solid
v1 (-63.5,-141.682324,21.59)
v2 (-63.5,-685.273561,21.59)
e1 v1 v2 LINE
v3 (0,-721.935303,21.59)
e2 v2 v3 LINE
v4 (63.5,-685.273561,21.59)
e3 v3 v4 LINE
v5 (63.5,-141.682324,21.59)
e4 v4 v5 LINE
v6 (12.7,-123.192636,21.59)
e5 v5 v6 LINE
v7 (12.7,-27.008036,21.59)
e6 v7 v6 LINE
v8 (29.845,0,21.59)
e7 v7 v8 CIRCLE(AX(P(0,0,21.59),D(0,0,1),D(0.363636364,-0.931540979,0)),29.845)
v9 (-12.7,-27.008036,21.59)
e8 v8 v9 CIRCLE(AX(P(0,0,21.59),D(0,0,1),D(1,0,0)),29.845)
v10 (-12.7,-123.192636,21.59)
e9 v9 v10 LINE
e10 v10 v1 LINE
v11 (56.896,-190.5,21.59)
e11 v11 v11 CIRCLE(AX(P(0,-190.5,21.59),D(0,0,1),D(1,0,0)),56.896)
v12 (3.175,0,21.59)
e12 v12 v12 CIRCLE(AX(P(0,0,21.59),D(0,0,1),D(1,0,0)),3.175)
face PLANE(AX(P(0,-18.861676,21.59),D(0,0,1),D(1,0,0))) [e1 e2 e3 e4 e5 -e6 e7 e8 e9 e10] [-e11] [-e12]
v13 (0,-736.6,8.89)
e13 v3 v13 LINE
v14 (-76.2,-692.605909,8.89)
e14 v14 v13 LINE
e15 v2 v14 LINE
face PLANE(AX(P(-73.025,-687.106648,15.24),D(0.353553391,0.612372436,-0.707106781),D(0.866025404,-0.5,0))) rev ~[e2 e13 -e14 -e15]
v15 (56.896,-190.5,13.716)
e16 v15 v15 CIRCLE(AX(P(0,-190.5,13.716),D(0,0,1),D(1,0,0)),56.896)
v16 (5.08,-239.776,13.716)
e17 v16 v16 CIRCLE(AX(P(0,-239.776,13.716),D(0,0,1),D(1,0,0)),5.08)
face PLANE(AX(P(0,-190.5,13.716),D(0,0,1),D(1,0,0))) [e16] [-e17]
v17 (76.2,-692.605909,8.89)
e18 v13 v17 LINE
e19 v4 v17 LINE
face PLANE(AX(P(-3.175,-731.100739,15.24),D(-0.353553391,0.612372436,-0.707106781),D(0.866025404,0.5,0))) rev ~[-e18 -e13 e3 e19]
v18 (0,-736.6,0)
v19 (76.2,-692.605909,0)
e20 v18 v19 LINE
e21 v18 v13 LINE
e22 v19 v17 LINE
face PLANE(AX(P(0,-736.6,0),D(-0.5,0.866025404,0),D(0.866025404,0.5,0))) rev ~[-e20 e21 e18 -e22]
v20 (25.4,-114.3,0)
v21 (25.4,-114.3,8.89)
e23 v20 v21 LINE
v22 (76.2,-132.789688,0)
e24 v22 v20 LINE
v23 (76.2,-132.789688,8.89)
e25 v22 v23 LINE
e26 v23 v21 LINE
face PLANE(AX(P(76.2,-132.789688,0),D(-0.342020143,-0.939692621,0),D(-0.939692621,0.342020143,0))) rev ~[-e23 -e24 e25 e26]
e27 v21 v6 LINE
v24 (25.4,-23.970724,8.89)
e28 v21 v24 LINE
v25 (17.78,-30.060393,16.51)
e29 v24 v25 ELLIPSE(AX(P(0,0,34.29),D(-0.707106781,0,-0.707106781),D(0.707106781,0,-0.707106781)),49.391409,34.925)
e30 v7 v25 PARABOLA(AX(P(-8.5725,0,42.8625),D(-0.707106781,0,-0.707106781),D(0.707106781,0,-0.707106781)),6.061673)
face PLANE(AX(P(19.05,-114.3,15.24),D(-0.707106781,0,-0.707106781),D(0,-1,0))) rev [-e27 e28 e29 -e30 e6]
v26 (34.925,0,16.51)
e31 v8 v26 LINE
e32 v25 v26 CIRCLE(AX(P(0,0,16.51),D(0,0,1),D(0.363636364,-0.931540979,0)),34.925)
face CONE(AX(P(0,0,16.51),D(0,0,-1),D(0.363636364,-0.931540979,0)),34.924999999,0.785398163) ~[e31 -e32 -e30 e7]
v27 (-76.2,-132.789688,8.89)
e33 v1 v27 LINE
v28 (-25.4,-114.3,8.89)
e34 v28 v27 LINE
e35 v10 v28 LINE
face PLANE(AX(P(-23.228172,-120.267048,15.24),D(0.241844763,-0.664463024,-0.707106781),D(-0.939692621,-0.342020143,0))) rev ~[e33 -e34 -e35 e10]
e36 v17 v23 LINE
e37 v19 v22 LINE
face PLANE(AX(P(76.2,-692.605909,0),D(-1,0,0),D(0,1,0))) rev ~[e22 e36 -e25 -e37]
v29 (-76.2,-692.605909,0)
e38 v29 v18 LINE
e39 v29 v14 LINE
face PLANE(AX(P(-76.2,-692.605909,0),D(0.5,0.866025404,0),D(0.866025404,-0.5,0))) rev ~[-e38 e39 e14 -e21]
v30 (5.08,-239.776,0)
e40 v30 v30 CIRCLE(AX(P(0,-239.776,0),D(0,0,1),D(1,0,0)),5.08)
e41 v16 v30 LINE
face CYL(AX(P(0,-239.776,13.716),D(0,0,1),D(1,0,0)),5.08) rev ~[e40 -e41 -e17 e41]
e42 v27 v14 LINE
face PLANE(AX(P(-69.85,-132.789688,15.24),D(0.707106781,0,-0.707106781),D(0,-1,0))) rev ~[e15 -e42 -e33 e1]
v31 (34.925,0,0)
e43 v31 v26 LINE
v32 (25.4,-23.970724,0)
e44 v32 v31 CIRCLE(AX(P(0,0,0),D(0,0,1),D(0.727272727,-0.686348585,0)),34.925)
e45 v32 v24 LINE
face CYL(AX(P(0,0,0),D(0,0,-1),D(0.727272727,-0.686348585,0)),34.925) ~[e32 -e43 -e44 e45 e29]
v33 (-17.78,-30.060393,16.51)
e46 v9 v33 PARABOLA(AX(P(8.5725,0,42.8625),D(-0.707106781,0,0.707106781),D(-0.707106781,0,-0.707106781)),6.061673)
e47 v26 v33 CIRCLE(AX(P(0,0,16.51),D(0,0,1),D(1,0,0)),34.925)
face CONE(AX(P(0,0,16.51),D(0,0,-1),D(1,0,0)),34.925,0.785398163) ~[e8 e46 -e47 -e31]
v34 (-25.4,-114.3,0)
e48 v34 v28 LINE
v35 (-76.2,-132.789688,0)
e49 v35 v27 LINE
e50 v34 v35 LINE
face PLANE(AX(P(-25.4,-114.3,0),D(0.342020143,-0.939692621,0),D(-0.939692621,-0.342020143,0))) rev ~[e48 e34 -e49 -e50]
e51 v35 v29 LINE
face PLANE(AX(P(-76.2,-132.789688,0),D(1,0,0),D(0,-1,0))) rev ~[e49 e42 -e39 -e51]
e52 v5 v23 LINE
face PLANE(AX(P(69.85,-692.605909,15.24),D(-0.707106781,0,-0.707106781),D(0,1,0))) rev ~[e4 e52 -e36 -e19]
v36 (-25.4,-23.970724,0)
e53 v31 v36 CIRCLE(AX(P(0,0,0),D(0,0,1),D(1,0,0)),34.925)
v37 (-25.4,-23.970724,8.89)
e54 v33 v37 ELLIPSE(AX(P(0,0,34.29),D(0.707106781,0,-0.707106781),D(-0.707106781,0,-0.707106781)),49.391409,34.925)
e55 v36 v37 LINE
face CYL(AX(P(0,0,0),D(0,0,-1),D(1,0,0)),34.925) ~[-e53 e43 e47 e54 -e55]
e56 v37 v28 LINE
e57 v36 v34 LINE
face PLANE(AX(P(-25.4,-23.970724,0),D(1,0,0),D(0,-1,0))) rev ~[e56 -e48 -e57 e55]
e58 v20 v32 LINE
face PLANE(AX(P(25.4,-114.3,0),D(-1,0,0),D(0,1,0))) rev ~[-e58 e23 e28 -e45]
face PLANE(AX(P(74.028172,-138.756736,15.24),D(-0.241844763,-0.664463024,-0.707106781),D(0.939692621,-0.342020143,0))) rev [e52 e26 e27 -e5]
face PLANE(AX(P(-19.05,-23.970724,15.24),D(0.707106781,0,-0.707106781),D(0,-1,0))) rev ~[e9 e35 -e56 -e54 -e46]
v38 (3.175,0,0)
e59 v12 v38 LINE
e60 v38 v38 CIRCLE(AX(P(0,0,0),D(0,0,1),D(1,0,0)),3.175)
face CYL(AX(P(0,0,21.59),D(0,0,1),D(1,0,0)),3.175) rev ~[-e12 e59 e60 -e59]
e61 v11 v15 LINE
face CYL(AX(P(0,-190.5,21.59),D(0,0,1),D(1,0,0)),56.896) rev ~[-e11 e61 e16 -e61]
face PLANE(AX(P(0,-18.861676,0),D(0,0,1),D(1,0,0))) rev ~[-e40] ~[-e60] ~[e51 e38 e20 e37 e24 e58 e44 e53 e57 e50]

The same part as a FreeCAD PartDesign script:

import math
import FreeCAD as App
import Part
import Sketcher
Q = App.Units.Quantity


def edges_at(feature, points):
    """Names of the edges that pass closest to the given points."""
    edges = feature.Shape.Edges
    near = lambda p: min(range(len(edges)), key=lambda i: edges[i].distToShape(Part.Vertex(*p))[0])
    return sorted({f"Edge{near(p) + 1}" for p in points})

doc = App.newDocument("Part")
body = doc.addObject("PartDesign::Body", "Body")

sketch1 = doc.addObject("Sketcher::SketchObject", "Sketch")
body.addObject(sketch1)
sketch1.AttachmentSupport = (doc.XY_Plane, [""])
sketch1.MapMode = "FlatFace"
sketch1.addGeometry([
    Part.LineSegment(App.Vector(25, -114, 0), App.Vector(25, -24, 0)),
    Part.ArcOfCircle(Part.Circle(App.Vector(0, 0, 0), App.Vector(0, 0, 1), 35), math.radians(-43), math.radians(0)),
    Part.ArcOfCircle(Part.Circle(App.Vector(0, 0, 0), App.Vector(0, 0, 1), 35), math.radians(0), math.radians(223)),
    Part.LineSegment(App.Vector(-25, -24, 0), App.Vector(-25, -114, 0)),
    Part.LineSegment(App.Vector(-25, -114, 0), App.Vector(-76, -133, 0)),
    Part.LineSegment(App.Vector(-76, -133, 0), App.Vector(-76, -693, 0)),
    Part.LineSegment(App.Vector(-76, -693, 0), App.Vector(0, -737, 0)),
    Part.LineSegment(App.Vector(0, -737, 0), App.Vector(76, -693, 0)),
    Part.LineSegment(App.Vector(76, -693, 0), App.Vector(76, -133, 0)),
    Part.LineSegment(App.Vector(76, -133, 0), App.Vector(25, -114, 0)),
], False)
sketch1.addConstraint([
    Sketcher.Constraint("Coincident", 0, 2, 1, 1),
    Sketcher.Constraint("Tangent", 1, 2, 2, 1),
    Sketcher.Constraint("Coincident", 2, 2, 3, 1),
    Sketcher.Constraint("Coincident", 3, 2, 4, 1),
    Sketcher.Constraint("Coincident", 4, 2, 5, 1),
    Sketcher.Constraint("Coincident", 5, 2, 6, 1),
    Sketcher.Constraint("Coincident", 6, 2, 7, 1),
    Sketcher.Constraint("Coincident", 7, 2, 8, 1),
    Sketcher.Constraint("Coincident", 8, 2, 9, 1),
    Sketcher.Constraint("Coincident", 9, 2, 0, 1),
    Sketcher.Constraint("Vertical", 0),
    Sketcher.Constraint("Vertical", 3),
    Sketcher.Constraint("Vertical", 5),
    Sketcher.Constraint("Vertical", 8),
    Sketcher.Constraint("Coincident", 1, 3, -1, 1),
    Sketcher.Constraint("Equal", 1, 2),
    Sketcher.Constraint("Symmetric", 5, 2, 7, 2, -2),
    Sketcher.Constraint("Symmetric", 3, 2, 9, 2, -2),
    Sketcher.Constraint("PointOnObject", 1, 2, -1),
    Sketcher.Constraint("PointOnObject", 6, 2, -2),
    Sketcher.Constraint("Horizontal", 4, 2, 8, 2),
    Sketcher.Constraint("DistanceX", -1, 1, 0, 2, Q("1 in")),
    Sketcher.Constraint("DistanceX", 4, 2, -1, 1, Q("3 in")),
    Sketcher.Constraint("DistanceY", 6, 2, -1, 1, Q("29 in")),
    Sketcher.Constraint("Angle", 4, Q("-160 deg")),
    Sketcher.Constraint("Angle", 6, Q("-30 deg")),
    Sketcher.Constraint("Radius", 1, Q("1.375 in")),
    Sketcher.Constraint("DistanceY", 3, 2, -1, 1, Q("4.5 in")),
])
pad1 = doc.addObject("PartDesign::Pad", "Pad")
body.addObject(pad1)
pad1.Profile = sketch1
pad1.Length = Q("0.85 in")

sketch2 = doc.addObject("Sketcher::SketchObject", "Sketch001")
body.addObject(sketch2)
sketch2.AttachmentSupport = (doc.XY_Plane, [""])
sketch2.MapMode = "FlatFace"
sketch2.AttachmentOffset = App.Placement(App.Vector(0, 0, 0.85 * 25.4), App.Rotation())
sketch2.addGeometry(Part.Circle(App.Vector(0, -190, 0), App.Vector(0, 0, 1), 57), False)
sketch2.addConstraint([
    Sketcher.Constraint("PointOnObject", 0, 3, -2),
    Sketcher.Constraint("Diameter", 0, Q("4.48 in")),
    Sketcher.Constraint("DistanceY", 0, 3, -1, 1, Q("7.5 in")),
])
pocket1 = doc.addObject("PartDesign::Pocket", "Pocket")
body.addObject(pocket1)
pocket1.Profile = sketch2
pocket1.Length = Q("0.31 in")

sketch3 = doc.addObject("Sketcher::SketchObject", "Sketch002")
body.addObject(sketch3)
sketch3.AttachmentSupport = (doc.XY_Plane, [""])
sketch3.MapMode = "FlatFace"
sketch3.AttachmentOffset = App.Placement(App.Vector(0, 0, 0.54 * 25.4), App.Rotation())
sketch3.addGeometry(Part.Circle(App.Vector(0, -240, 0), App.Vector(0, 0, 1), 5), False)
sketch3.addConstraint([
    Sketcher.Constraint("PointOnObject", 0, 3, -2),
    Sketcher.Constraint("Diameter", 0, Q("0.4 in")),
    Sketcher.Constraint("DistanceY", 0, 3, -1, 1, Q("9.44 in")),
])
pocket2 = doc.addObject("PartDesign::Pocket", "Pocket001")
body.addObject(pocket2)
pocket2.Profile = sketch3
pocket2.Type = "ThroughAll"
doc.recompute()

chamfer = doc.addObject("PartDesign::Chamfer", "Chamfer")
body.addObject(chamfer)
chamfer.Base = (pocket2, edges_at(pocket2, [
    (-76.2, -412.698, 21.59),
    (-38.1, -714.603, 21.59),
    (38.1, -714.603, 21.59),
    (76.2, -412.698, 21.59),
    (50.8, -123.545, 21.59),
    (-50.8, -123.545, 21.59),
    (25.4, -69.135, 21.59),
    (-25.4, -69.135, 21.59),
]))
chamfer.Size = Q("0.5 in")

sketch4 = doc.addObject("Sketcher::SketchObject", "Sketch003")
body.addObject(sketch4)
sketch4.AttachmentSupport = (doc.XY_Plane, [""])
sketch4.MapMode = "FlatFace"
sketch4.AttachmentOffset = App.Placement(App.Vector(0, 0, 0.85 * 25.4), App.Rotation())
sketch4.addGeometry(Part.Circle(App.Vector(0, 0, 0), App.Vector(0, 0, 1), 3.2), False)
sketch4.addConstraint([
    Sketcher.Constraint("Coincident", 0, 3, -1, 1),
    Sketcher.Constraint("Diameter", 0, Q("0.25 in")),
])
pocket3 = doc.addObject("PartDesign::Pocket", "Pocket002")
body.addObject(pocket3)
pocket3.Profile = sketch4
pocket3.Type = "ThroughAll"
doc.recompute()

chamfer2 = doc.addObject("PartDesign::Chamfer", "Chamfer001")
body.addObject(chamfer2)
chamfer2.Base = (pocket3, edges_at(pocket3, [(-19.7, 28.838, 21.59)]))
chamfer2.Size = Q("0.2 in")

doc.recompute()
